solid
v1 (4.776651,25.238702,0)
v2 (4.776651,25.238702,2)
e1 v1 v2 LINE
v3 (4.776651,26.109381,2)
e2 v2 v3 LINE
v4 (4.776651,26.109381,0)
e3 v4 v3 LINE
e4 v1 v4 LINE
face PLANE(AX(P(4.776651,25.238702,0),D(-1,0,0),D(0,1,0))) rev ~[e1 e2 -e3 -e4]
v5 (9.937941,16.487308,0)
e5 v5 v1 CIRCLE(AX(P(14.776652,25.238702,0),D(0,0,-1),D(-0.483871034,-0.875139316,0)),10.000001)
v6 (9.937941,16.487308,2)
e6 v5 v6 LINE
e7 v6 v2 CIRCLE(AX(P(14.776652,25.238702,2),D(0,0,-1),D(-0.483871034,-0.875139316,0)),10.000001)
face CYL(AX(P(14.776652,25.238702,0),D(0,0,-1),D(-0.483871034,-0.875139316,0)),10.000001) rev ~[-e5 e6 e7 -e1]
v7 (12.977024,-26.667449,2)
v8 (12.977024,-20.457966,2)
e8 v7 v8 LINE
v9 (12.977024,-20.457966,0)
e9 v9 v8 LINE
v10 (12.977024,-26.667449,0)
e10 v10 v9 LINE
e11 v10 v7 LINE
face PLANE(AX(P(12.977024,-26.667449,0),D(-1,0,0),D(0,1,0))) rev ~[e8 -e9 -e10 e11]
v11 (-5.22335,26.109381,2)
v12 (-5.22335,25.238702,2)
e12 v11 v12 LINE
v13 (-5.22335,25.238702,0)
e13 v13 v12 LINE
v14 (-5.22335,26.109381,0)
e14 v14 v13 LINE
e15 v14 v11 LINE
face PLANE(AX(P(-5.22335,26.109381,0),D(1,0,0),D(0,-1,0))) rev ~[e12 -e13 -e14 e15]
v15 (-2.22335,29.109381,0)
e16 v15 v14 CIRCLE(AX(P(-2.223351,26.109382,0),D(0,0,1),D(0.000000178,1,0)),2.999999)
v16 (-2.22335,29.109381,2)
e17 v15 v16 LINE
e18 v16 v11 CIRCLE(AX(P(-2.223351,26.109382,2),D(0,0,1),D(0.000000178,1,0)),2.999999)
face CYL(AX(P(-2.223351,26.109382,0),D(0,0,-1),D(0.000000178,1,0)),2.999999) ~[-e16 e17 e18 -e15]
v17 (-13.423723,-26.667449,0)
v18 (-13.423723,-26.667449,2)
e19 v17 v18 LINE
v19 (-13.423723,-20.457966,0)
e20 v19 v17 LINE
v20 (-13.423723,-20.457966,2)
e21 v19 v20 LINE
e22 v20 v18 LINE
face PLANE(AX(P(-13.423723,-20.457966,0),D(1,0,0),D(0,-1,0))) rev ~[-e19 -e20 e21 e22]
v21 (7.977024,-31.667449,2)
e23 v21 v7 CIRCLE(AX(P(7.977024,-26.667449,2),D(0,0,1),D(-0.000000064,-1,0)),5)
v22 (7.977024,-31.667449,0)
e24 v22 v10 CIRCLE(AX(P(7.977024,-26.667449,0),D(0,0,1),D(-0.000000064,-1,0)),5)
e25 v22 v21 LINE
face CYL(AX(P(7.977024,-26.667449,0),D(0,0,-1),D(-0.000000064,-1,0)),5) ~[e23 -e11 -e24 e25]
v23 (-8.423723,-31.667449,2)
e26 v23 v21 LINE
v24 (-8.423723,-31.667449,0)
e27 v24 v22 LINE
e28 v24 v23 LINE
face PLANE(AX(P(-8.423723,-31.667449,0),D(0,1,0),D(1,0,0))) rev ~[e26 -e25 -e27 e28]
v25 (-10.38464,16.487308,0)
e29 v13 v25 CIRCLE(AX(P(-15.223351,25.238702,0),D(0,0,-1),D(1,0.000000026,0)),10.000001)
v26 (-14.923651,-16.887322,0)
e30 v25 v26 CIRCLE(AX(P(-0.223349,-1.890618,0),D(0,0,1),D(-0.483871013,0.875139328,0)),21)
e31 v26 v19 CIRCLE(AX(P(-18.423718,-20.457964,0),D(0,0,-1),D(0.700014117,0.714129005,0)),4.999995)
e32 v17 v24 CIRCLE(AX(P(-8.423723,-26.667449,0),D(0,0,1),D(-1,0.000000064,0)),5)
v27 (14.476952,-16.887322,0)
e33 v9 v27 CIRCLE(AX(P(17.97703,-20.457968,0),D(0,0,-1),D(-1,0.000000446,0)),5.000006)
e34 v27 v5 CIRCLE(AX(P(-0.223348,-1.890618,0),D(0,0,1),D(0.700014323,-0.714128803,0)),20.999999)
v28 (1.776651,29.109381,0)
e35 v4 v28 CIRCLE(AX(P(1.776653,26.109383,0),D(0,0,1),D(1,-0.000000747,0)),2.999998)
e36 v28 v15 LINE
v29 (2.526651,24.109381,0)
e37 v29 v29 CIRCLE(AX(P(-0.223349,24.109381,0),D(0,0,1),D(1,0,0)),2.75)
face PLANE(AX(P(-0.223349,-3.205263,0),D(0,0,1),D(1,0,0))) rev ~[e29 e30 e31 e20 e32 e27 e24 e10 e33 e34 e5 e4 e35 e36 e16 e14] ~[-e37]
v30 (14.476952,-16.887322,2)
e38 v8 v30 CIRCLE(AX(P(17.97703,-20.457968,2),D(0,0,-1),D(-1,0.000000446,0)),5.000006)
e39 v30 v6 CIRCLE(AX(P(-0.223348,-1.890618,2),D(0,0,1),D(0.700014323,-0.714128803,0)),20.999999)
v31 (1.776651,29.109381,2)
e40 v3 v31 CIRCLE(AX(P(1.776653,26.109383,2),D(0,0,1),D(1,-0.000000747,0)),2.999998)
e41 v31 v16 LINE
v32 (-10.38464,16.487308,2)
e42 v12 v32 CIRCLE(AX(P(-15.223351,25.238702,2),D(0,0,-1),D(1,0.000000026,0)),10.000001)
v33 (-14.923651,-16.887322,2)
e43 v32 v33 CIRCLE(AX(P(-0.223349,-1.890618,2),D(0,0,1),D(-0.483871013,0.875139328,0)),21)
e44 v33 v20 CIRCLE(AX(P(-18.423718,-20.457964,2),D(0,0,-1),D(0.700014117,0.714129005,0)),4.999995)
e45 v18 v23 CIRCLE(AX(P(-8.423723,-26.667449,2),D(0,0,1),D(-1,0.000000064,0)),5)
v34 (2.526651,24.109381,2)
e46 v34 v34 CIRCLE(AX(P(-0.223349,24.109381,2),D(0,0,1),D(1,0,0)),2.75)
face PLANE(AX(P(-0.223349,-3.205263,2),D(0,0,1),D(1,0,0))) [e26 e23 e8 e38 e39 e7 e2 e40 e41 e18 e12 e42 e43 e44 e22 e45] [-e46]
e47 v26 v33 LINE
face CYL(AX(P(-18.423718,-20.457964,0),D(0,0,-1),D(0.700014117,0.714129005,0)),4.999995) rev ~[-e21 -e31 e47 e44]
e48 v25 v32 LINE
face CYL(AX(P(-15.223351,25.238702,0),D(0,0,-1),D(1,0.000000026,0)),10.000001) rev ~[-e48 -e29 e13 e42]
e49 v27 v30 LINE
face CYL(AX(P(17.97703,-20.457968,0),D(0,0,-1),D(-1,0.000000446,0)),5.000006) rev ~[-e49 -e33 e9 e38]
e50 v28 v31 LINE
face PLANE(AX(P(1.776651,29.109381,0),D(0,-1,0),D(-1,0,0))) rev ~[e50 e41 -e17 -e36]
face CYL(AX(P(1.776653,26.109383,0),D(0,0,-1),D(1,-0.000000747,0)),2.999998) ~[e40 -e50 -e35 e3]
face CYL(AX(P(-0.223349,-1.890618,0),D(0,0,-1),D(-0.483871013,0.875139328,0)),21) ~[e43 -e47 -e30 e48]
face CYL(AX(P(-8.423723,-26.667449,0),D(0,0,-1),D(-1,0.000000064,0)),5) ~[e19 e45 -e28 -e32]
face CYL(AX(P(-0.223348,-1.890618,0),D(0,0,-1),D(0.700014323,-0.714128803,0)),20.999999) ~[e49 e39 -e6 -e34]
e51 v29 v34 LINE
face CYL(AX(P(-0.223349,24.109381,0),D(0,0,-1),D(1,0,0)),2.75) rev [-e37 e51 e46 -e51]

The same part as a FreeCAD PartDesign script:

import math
import FreeCAD as App
import Part
import Sketcher
from FreeCAD import Vector
Q = App.Units.Quantity

doc = App.newDocument("Part")
body = doc.addObject("PartDesign::Body", "Body")

# Sketch on XY plane
sketch1 = body.newObject("Sketcher::SketchObject", "Sketch")
sketch1.AttachmentSupport = (doc.getObject("XY_Plane"), [""])
sketch1.MapMode = "FlatFace"
sketch1.addGeometry(Part.ArcOfCircle(Part.Circle(Vector(17.97703, -20.457968, 0), Vector(0, 0, 1), 5.000006), math.radians(134.428189), math.radians(179.999974)), False)
sketch1.addGeometry(Part.ArcOfCircle(Part.Circle(Vector(-0.223348, -1.890618, 0), Vector(0, 0, 1), 20.999999), math.radians(-45.571847), math.radians(61.061475)), False)
sketch1.addGeometry(Part.ArcOfCircle(Part.Circle(Vector(14.776652, 25.238702, 0), Vector(0, 0, 1), 10.000001), math.radians(179.999999), math.radians(241.061468)), False)
sketch1.addGeometry(Part.LineSegment(Vector(4.776651, 25.238702, 0), Vector(4.776651, 26.109381, 0)), False)
sketch1.addGeometry(Part.ArcOfCircle(Part.Circle(Vector(1.776653, 26.109383, 0), Vector(0, 0, 1), 2.999998), math.radians(-0.000043), math.radians(90.000043)), False)
sketch1.addGeometry(Part.LineSegment(Vector(1.776651, 29.109381, 0), Vector(-2.22335, 29.109381, 0)), False)
sketch1.addGeometry(Part.ArcOfCircle(Part.Circle(Vector(-2.223351, 26.109382, 0), Vector(0, 0, 1), 2.999999), math.radians(89.99999), math.radians(180.00001)), False)
sketch1.addGeometry(Part.LineSegment(Vector(-5.22335, 26.109381, 0), Vector(-5.22335, 25.238702, 0)), False)
sketch1.addGeometry(Part.ArcOfCircle(Part.Circle(Vector(-15.223351, 25.238702, 0), Vector(0, 0, 1), 10.000001), math.radians(-61.061468), math.radians(0.000001)), False)
sketch1.addGeometry(Part.ArcOfCircle(Part.Circle(Vector(-0.223349, -1.890618, 0), Vector(0, 0, 1), 21), math.radians(118.938531), math.radians(225.571841)), False)
sketch1.addGeometry(Part.ArcOfCircle(Part.Circle(Vector(-18.423718, -20.457964, 0), Vector(0, 0, 1), 4.999995), math.radians(-0.000027), math.radians(45.571863)), False)
sketch1.addGeometry(Part.LineSegment(Vector(-13.423723, -20.457966, 0), Vector(-13.423723, -26.667449, 0)), False)
sketch1.addGeometry(Part.ArcOfCircle(Part.Circle(Vector(-8.423723, -26.667449, 0), Vector(0, 0, 1), 5), math.radians(179.999996), math.radians(270.000004)), False)
sketch1.addGeometry(Part.LineSegment(Vector(-8.423723, -31.667449, 0), Vector(7.977024, -31.667449, 0)), False)
sketch1.addGeometry(Part.ArcOfCircle(Part.Circle(Vector(7.977024, -26.667449, 0), Vector(0, 0, 1), 5), math.radians(-90.000004), math.radians(0.000004)), False)
sketch1.addGeometry(Part.LineSegment(Vector(12.977024, -26.667449, 0), Vector(12.977024, -20.457966, 0)), False)
sketch1.addGeometry(Part.Circle(Vector(-0.223349, 24.109381, 0), Vector(0, 0, 1), 2.75), False)
sketch1.addConstraint(Sketcher.Constraint("Tangent", 0, 1, 1, 1))
sketch1.addConstraint(Sketcher.Constraint("Tangent", 1, 2, 2, 2))
sketch1.addConstraint(Sketcher.Constraint("Tangent", 2, 1, 3, 1))
sketch1.addConstraint(Sketcher.Constraint("Tangent", 3, 2, 4, 1))
sketch1.addConstraint(Sketcher.Constraint("Tangent", 4, 2, 5, 1))
sketch1.addConstraint(Sketcher.Constraint("Tangent", 5, 2, 6, 1))
sketch1.addConstraint(Sketcher.Constraint("Tangent", 6, 2, 7, 1))
sketch1.addConstraint(Sketcher.Constraint("Tangent", 7, 2, 8, 2))
sketch1.addConstraint(Sketcher.Constraint("Tangent", 8, 1, 9, 1))
sketch1.addConstraint(Sketcher.Constraint("Tangent", 9, 2, 10, 2))
sketch1.addConstraint(Sketcher.Constraint("Tangent", 10, 1, 11, 1))
sketch1.addConstraint(Sketcher.Constraint("Tangent", 11, 2, 12, 1))
sketch1.addConstraint(Sketcher.Constraint("Tangent", 12, 2, 13, 1))
sketch1.addConstraint(Sketcher.Constraint("Tangent", 13, 2, 14, 1))
sketch1.addConstraint(Sketcher.Constraint("Tangent", 14, 2, 15, 1))
sketch1.addConstraint(Sketcher.Constraint("Tangent", 15, 2, 0, 2))
sketch1.addConstraint(Sketcher.Constraint("Vertical", 3))
sketch1.addConstraint(Sketcher.Constraint("Horizontal", 5))
sketch1.addConstraint(Sketcher.Constraint("Vertical", 7))
sketch1.addConstraint(Sketcher.Constraint("Vertical", 11))
sketch1.addConstraint(Sketcher.Constraint("Horizontal", 13))
sketch1.addConstraint(Sketcher.Constraint("Vertical", 15))
sketch1.addConstraint(Sketcher.Constraint("Coincident", 9, 3, 1, 3))
sketch1.addConstraint(Sketcher.Constraint("Equal", 4, 6))
sketch1.addConstraint(Sketcher.Constraint("Equal", 2, 8))
sketch1.addConstraint(Sketcher.Constraint("Equal", 1, 9))
sketch1.addConstraint(Sketcher.Constraint("Equal", 12, 14))
sketch1.addConstraint(Sketcher.Constraint("Horizontal", 2, 3, 8, 3))
sketch1.addConstraint(Sketcher.Constraint("Horizontal", 0, 1, 9, 2))
sketch1.addConstraint(Sketcher.Constraint("Horizontal", 10, 1, 15, 2))
sketch1.addConstraint(Sketcher.Constraint("Vertical", 9, 3, 16, 3))
sketch1.addConstraint(Sketcher.Constraint("Radius", 1, Q("20.999999 mm")))
sketch1.addConstraint(Sketcher.Constraint("Radius", 2, Q("10.000001 mm")))
sketch1.addConstraint(Sketcher.Constraint("Radius", 6, Q("2.999999 mm")))
sketch1.addConstraint(Sketcher.Constraint("Radius", 12, Q("5 mm")))
sketch1.addConstraint(Sketcher.Constraint("Diameter", 16, Q("5.5 mm")))
sketch1.addConstraint(Sketcher.Constraint("DistanceX", 5, 2, 5, 1, Q("4.000001 mm")))
sketch1.addConstraint(Sketcher.Constraint("DistanceY", 1, 3, 4, 3, Q("28.000001 mm")))
sketch1.addConstraint(Sketcher.Constraint("DistanceY", 16, 3, 6, 3, Q("2.000001 mm")))
sketch1.addConstraint(Sketcher.Constraint("Radius", 0, Q("5.000006 mm")))
sketch1.addConstraint(Sketcher.Constraint("DistanceY", -1, 1, 2, 3, Q("25.238702 mm")))
sketch1.addConstraint(Sketcher.Constraint("DistanceX", 1, 3, 0, 1, Q("14.7003 mm")))
sketch1.addConstraint(Sketcher.Constraint("DistanceY", 11, 2, 11, 1, Q("6.209483 mm")))
sketch1.addConstraint(Sketcher.Constraint("DistanceX", -1, 1, 0, 3, Q("17.97703 mm")))
pad1 = body.newObject("PartDesign::Pad", "Pad")
pad1.Profile = sketch1
pad1.Length = 2

doc.recompute()
